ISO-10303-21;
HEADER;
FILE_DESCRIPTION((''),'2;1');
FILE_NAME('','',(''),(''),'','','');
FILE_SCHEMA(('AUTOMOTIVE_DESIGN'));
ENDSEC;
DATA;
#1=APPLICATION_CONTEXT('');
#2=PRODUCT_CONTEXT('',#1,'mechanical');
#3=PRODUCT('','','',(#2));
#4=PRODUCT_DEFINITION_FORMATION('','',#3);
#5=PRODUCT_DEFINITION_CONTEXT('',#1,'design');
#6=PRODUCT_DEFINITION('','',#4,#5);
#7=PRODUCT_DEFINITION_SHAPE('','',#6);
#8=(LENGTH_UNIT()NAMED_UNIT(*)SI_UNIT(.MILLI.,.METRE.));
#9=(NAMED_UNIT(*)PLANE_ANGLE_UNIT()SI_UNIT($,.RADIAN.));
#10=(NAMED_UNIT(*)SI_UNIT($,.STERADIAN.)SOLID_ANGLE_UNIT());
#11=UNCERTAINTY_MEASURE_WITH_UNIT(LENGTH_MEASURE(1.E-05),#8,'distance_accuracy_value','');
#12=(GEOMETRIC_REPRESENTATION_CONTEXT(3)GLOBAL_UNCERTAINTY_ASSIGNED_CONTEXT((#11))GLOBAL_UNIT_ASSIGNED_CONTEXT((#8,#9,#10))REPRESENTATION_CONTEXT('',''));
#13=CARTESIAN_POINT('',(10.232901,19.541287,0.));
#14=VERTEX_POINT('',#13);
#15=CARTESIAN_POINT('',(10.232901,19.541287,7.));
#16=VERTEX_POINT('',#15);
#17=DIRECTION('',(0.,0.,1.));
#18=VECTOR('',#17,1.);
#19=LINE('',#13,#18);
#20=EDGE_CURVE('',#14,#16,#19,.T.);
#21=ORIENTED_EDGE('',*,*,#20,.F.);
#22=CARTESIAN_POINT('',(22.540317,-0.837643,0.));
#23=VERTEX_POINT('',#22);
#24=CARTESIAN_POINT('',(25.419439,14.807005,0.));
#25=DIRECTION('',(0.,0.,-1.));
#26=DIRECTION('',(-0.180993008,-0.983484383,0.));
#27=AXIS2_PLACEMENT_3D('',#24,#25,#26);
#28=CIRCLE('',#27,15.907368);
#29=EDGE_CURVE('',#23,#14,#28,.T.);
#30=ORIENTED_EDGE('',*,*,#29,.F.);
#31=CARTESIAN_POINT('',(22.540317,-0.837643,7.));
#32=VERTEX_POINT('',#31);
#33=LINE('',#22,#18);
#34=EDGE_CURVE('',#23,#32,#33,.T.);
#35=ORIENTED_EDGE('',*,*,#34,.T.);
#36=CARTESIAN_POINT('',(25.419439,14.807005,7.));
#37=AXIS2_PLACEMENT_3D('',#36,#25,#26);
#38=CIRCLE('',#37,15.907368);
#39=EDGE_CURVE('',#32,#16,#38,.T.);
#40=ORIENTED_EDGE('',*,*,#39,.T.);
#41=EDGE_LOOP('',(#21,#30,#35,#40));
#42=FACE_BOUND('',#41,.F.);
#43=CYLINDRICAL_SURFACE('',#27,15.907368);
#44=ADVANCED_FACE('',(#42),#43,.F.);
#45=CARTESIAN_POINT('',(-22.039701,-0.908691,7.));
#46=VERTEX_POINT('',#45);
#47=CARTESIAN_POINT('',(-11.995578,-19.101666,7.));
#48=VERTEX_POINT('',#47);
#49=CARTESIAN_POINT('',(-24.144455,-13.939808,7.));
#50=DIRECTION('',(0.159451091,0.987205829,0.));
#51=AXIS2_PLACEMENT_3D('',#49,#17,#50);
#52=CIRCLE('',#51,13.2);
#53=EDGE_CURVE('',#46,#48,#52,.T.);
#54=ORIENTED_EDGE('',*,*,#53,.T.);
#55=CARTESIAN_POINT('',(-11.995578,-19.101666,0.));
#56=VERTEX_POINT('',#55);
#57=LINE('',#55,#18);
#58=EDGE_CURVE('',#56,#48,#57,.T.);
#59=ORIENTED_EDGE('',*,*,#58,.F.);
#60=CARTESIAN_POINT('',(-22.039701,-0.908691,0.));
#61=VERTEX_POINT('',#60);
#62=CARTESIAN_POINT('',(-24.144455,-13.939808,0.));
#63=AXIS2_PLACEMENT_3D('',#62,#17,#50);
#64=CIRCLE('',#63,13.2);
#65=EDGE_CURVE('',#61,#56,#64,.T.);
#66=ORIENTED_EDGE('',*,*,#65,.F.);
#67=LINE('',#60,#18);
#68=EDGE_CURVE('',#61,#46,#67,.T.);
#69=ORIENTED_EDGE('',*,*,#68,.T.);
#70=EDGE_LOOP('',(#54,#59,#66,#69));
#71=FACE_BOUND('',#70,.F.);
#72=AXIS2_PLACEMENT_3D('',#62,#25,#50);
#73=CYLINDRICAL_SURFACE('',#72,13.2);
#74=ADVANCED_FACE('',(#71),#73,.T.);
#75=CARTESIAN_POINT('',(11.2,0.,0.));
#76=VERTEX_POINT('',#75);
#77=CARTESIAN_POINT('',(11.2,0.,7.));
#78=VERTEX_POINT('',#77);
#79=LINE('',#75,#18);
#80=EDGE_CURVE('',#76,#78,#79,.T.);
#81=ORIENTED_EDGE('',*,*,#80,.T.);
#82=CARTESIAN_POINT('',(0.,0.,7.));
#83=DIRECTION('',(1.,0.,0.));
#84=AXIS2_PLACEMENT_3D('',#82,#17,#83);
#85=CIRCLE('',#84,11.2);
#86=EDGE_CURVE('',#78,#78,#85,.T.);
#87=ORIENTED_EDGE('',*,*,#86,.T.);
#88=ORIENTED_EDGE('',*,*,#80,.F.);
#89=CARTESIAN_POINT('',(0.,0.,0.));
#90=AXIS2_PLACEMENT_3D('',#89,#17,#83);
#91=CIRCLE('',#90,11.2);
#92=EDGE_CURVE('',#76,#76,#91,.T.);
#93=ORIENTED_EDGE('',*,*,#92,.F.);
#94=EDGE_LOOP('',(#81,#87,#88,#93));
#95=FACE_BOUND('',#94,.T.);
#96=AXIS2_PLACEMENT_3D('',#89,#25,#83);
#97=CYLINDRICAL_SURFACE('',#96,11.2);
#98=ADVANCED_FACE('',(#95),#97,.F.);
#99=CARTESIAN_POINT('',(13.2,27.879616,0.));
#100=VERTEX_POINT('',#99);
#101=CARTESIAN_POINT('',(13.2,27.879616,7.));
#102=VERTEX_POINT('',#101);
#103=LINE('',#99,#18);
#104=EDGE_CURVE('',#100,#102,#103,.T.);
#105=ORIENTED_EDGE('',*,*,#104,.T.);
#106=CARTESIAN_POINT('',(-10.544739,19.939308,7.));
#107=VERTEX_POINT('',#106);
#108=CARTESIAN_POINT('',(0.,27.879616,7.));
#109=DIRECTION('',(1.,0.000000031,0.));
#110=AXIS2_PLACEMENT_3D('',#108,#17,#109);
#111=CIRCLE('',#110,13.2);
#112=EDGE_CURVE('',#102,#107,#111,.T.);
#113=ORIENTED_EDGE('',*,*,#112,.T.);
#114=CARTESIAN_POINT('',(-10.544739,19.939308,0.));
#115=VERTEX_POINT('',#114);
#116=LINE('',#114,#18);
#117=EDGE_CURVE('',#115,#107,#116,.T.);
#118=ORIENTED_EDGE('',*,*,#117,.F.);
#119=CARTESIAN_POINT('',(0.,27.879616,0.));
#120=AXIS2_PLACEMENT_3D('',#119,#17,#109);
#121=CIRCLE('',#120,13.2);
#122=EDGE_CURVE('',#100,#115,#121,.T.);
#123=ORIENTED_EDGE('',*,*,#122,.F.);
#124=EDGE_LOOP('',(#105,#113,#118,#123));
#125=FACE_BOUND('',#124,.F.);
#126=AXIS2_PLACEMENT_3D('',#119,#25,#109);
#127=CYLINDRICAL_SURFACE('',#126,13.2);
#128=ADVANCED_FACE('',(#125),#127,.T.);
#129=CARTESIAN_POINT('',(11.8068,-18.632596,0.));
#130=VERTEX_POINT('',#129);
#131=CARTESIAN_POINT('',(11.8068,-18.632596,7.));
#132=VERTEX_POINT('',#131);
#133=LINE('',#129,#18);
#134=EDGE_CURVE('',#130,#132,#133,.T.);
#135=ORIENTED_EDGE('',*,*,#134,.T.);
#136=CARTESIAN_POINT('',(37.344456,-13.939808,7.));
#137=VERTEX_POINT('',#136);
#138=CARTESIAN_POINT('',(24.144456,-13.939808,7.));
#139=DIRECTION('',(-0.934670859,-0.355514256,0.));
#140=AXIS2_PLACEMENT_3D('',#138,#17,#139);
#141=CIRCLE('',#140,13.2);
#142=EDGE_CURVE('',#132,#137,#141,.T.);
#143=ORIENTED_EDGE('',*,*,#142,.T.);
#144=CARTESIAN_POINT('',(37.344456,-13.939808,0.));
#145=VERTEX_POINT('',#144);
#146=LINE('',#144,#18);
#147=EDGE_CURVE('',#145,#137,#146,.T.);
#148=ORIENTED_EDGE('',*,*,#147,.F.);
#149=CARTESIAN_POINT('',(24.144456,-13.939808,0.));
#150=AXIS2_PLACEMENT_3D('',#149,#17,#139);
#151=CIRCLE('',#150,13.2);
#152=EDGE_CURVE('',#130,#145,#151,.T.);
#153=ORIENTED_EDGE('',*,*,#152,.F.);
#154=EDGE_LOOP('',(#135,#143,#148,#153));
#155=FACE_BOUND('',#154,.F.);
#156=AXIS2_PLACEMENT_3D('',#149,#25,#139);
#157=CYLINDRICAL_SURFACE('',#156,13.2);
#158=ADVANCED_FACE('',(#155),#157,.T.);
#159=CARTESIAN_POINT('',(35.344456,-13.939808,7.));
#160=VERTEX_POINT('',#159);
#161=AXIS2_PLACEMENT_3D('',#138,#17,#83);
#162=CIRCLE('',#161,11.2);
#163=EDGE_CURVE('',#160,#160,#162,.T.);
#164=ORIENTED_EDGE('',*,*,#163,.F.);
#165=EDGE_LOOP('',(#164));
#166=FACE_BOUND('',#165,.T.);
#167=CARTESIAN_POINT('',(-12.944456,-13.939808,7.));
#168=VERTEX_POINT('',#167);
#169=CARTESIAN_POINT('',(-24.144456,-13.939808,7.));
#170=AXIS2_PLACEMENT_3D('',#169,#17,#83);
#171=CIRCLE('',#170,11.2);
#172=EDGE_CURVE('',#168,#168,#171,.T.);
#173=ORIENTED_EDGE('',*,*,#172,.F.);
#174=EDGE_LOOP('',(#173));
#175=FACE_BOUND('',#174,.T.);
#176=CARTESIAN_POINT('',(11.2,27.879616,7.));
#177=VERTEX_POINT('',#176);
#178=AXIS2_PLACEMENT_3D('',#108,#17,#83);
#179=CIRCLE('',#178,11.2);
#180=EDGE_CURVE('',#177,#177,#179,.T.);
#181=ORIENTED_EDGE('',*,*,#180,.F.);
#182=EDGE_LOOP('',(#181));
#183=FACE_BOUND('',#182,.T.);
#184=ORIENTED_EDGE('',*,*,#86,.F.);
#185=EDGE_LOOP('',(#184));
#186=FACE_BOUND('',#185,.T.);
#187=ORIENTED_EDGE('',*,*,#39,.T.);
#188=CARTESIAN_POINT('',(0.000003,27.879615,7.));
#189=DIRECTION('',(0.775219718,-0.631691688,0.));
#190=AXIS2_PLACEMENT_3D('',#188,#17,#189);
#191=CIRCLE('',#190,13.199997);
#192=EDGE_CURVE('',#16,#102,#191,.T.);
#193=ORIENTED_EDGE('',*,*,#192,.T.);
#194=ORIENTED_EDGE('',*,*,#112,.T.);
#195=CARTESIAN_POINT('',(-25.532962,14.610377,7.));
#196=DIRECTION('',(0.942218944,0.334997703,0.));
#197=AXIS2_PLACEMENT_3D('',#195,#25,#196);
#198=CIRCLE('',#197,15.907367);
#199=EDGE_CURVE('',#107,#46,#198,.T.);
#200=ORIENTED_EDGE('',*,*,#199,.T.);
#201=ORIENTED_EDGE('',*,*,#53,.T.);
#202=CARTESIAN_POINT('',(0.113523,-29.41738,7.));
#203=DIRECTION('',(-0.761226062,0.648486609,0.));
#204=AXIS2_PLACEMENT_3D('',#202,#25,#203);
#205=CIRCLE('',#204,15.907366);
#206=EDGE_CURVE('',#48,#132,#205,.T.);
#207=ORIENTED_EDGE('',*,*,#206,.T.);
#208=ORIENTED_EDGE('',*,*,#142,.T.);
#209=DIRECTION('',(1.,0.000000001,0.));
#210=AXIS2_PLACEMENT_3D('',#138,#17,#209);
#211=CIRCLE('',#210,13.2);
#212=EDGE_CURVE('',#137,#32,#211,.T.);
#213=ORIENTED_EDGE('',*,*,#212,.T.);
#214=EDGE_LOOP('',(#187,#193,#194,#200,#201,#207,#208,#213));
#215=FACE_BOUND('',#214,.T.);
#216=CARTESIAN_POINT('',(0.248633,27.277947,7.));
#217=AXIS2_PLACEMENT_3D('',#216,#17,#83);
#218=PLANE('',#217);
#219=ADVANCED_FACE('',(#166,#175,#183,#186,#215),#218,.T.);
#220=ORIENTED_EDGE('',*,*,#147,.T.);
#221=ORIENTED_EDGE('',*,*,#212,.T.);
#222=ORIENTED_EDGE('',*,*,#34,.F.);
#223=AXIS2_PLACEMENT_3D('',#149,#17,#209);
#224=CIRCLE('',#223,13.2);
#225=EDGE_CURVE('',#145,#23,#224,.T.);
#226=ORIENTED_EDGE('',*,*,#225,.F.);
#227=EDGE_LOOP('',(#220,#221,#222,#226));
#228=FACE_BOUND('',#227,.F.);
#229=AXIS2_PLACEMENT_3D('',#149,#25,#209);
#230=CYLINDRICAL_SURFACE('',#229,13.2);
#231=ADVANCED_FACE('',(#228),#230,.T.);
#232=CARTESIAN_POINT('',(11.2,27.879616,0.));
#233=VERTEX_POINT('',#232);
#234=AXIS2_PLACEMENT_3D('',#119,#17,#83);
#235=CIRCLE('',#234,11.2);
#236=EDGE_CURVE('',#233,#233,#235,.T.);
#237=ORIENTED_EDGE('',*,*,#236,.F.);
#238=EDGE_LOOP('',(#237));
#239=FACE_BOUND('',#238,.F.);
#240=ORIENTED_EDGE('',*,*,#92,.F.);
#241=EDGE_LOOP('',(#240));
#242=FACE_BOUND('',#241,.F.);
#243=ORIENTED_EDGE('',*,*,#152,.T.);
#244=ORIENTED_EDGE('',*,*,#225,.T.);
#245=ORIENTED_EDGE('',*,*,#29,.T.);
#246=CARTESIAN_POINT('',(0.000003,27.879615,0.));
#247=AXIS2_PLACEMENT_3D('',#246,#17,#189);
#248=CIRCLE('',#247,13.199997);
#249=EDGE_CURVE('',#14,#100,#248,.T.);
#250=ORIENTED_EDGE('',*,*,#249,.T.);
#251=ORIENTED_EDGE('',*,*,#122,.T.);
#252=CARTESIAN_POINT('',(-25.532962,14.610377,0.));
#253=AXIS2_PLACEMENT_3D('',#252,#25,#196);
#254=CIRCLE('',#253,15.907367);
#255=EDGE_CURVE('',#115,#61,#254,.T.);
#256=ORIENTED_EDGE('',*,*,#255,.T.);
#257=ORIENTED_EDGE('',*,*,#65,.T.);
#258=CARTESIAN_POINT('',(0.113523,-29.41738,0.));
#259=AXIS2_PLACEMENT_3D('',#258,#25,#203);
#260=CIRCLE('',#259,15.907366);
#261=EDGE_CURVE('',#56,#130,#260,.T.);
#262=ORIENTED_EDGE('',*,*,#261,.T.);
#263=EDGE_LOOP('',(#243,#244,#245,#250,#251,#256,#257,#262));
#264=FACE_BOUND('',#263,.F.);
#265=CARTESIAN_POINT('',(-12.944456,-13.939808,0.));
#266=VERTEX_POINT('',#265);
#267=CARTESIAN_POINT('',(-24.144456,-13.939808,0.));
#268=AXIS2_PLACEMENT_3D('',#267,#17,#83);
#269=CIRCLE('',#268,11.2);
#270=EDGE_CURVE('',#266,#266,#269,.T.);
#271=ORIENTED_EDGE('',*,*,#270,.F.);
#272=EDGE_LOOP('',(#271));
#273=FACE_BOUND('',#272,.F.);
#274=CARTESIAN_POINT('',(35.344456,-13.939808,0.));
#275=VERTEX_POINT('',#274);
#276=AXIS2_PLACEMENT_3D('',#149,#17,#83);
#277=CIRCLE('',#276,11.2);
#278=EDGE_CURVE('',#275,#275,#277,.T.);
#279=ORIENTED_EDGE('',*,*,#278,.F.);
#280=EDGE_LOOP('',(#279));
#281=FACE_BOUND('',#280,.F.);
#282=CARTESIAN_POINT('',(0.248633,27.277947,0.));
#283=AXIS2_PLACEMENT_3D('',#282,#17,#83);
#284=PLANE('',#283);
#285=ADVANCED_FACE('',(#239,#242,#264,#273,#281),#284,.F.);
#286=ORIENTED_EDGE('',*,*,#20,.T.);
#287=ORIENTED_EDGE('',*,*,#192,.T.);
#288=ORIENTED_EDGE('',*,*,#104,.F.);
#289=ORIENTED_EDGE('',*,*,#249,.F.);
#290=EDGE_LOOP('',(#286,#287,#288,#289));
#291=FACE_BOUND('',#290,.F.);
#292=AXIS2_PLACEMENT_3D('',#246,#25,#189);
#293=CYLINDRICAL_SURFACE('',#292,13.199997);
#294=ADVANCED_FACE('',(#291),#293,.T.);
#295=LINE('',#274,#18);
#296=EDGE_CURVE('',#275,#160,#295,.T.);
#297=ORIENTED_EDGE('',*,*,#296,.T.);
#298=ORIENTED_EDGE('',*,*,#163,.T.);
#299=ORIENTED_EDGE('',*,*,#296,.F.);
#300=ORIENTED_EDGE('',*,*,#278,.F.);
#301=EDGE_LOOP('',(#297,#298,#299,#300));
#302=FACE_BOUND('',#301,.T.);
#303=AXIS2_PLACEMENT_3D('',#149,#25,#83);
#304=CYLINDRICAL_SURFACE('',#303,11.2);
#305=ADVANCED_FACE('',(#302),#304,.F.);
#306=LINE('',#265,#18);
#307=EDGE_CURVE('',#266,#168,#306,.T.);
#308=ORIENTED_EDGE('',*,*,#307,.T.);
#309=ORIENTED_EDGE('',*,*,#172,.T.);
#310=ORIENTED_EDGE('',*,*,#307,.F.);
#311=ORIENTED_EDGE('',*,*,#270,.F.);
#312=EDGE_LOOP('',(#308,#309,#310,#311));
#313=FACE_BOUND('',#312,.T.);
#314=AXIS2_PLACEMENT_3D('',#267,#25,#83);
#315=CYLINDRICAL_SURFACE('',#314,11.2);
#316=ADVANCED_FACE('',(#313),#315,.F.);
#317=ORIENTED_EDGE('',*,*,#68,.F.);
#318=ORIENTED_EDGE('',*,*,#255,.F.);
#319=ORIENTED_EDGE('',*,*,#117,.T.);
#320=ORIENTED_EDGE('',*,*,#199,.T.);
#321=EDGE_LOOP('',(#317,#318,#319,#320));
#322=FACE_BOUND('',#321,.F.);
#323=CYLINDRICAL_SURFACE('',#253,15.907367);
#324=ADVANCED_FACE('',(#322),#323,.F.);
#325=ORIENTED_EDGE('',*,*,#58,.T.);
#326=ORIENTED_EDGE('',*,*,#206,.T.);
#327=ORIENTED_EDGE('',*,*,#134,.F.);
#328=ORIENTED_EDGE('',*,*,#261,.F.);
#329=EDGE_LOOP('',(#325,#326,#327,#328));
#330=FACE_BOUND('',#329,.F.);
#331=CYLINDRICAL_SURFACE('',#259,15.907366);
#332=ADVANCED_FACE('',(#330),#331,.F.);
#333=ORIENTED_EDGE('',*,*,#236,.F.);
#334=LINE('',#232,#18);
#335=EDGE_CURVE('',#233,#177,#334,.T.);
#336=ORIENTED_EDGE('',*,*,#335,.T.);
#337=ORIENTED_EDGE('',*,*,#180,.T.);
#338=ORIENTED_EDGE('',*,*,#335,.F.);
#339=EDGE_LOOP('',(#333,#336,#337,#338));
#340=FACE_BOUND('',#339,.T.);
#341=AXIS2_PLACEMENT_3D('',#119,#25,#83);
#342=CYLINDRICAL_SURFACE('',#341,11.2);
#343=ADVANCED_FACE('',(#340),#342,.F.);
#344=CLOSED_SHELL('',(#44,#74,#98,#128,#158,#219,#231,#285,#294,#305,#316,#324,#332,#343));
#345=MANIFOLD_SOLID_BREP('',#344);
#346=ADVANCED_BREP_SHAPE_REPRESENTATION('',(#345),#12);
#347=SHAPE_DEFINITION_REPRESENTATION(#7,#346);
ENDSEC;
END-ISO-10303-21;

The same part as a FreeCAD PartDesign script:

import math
import FreeCAD as App
import Part
import Sketcher

V = App.Vector
Q = App.Units.Quantity

doc = App.newDocument("Part")
params = doc.addObject("Spreadsheet::Sheet", "Params")
for row, (alias, value) in enumerate([
    ("sketch1_diameter", "22.4 mm"),
    ("sketch1_radius", "13.2 mm"),
    ("pad1_length", "7 mm"),
], start=1):
    params.set(f"A{row}", alias)
    params.set(f"B{row}", "=" + value)
    params.setAlias(f"B{row}", alias)

body = doc.addObject("PartDesign::Body", "Body")

# Sketch on XY plane
sketch1 = doc.addObject("Sketcher::SketchObject", "Sketch")
body.addObject(sketch1)
sketch1.AttachmentSupport = (doc.XY_Plane, [""])
sketch1.MapMode = "FlatFace"
sketch1.addGeometry([
    Part.ArcOfCircle(Part.Circle(V(0, 28, 0), V(0, 0, 1), 13), math.radians(-39), math.radians(0)),  # 0
    Part.ArcOfCircle(Part.Circle(V(0, 28, 0), V(0, 0, 1), 13), math.radians(0), math.radians(217)),  # 1
    Part.ArcOfCircle(Part.Circle(V(-26, 15, 0), V(0, 0, 1), 16), math.radians(-77), math.radians(20)),  # 2
    Part.ArcOfCircle(Part.Circle(V(-24, -14, 0), V(0, 0, 1), 13), math.radians(81), math.radians(337)),  # 3
    Part.ArcOfCircle(Part.Circle(V(0, -29, 0), V(0, 0, 1), 16), math.radians(43), math.radians(140)),  # 4
    Part.ArcOfCircle(Part.Circle(V(24, -14, 0), V(0, 0, 1), 13), math.radians(-159), math.radians(0)),  # 5
    Part.ArcOfCircle(Part.Circle(V(24, -14, 0), V(0, 0, 1), 13), math.radians(0), math.radians(97)),  # 6
    Part.ArcOfCircle(Part.Circle(V(25, 15, 0), V(0, 0, 1), 16), math.radians(163), math.radians(260)),  # 7
    Part.Circle(V(-24, -14, 0), V(0, 0, 1), 11),  # 8
    Part.Circle(V(0, 0, 0), V(0, 0, 1), 11),  # 9
    Part.Circle(V(24, -14, 0), V(0, 0, 1), 11),  # 10
    Part.Circle(V(0, 28, 0), V(0, 0, 1), 11),  # 11
], False)
sketch1.addConstraint([
    Sketcher.Constraint("Tangent", 0, 2, 1, 1),
    Sketcher.Constraint("Coincident", 1, 2, 2, 2),
    Sketcher.Constraint("Coincident", 2, 1, 3, 1),
    Sketcher.Constraint("Coincident", 3, 2, 4, 2),
    Sketcher.Constraint("Coincident", 4, 1, 5, 1),
    Sketcher.Constraint("Tangent", 5, 2, 6, 1),
    Sketcher.Constraint("Coincident", 6, 2, 7, 2),
    Sketcher.Constraint("Coincident", 7, 1, 0, 1),
    Sketcher.Constraint("Coincident", 9, 3, -1, 1),
    Sketcher.Constraint("Coincident", 8, 3, 3, 3),
    Sketcher.Constraint("Coincident", 10, 3, 5, 3),
    Sketcher.Constraint("Coincident", 11, 3, 0, 3),
    Sketcher.Constraint("Equal", 1, 3),
    Sketcher.Constraint("Equal", 2, 4),
    Sketcher.Constraint("Equal", 3, 5),
    Sketcher.Constraint("Equal", 5, 6),
    Sketcher.Constraint("Equal", 2, 7),
    Sketcher.Constraint("Equal", 8, 9),
    Sketcher.Constraint("Equal", 9, 10),
    Sketcher.Constraint("Equal", 10, 11),
    Sketcher.Constraint("Symmetric", 3, 3, 5, 3, -2),
    Sketcher.Constraint("PointOnObject", 1, 3, -2),
    Sketcher.Constraint("PointOnObject", 11, 3, -2),
    Sketcher.Constraint("Horizontal", 11, 3, 0, 2),
    Sketcher.Constraint("Horizontal", 10, 3, 5, 2),
    Sketcher.Constraint("Diameter", 8, Q("22.4 mm")),
    Sketcher.Constraint("Radius", 1, Q("13.2 mm")),
    Sketcher.Constraint("Radius", 7, Q("15.907368 mm")),
    Sketcher.Constraint("DistanceY", 2, 1, 1, 2, Q("20.847999 mm")),
    Sketcher.Constraint("DistanceX", 2, 1, -1, 1, Q("22.039701 mm")),
    Sketcher.Constraint("DistanceX", -1, 1, 4, 1, Q("11.8068 mm")),
    Sketcher.Constraint("DistanceX", -1, 1, 7, 1, Q("10.232901 mm")),
    Sketcher.Constraint("DistanceX", 3, 2, 4, 3, Q("12.109101 mm")),
    Sketcher.Constraint("DistanceX", 2, 3, -1, 1, Q("25.532962 mm")),
    Sketcher.Constraint("DistanceY", 4, 3, -1, 1, Q("29.41738 mm")),
    Sketcher.Constraint("DistanceY", 6, 3, -1, 1, Q("13.939808 mm")),
    Sketcher.Constraint("DistanceX", -1, 1, 7, 3, Q("25.419439 mm")),
])
sketch1.setExpression("Constraints[25]", "Params.sketch1_diameter")
sketch1.setExpression("Constraints[26]", "Params.sketch1_radius")
pad1 = doc.addObject("PartDesign::Pad", "Pad")
body.addObject(pad1)
pad1.Profile = sketch1
pad1.setExpression("Length", "Params.pad1_length")

doc.recompute()
